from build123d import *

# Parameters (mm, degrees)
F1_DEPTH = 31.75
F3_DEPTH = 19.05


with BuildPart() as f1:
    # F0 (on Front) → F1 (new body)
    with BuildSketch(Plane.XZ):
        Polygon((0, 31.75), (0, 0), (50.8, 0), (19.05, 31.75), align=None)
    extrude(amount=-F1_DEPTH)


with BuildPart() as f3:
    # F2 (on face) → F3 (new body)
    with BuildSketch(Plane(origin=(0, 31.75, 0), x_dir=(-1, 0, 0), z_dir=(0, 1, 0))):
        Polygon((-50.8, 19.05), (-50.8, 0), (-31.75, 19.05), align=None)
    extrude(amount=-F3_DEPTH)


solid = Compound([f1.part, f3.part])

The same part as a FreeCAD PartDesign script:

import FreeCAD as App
import Part
import Sketcher

V = App.Vector
Q = App.Units.Quantity

doc = App.newDocument("Part")
body = doc.addObject("PartDesign::Body", "Body")

# Sketch on XZ plane
sketch1 = body.newObject("Sketcher::SketchObject", "Sketch")
sketch1.AttachmentSupport = (doc.getObject("XZ_Plane"), [""])
sketch1.MapMode = "FlatFace"
sketch1.addGeometry([
    Part.LineSegment(V(0, 31.75, 0), V(0, 0, 0)),
    Part.LineSegment(V(0, 0, 0), V(50.8, 0, 0)),
    Part.LineSegment(V(50.8, 0, 0), V(19.05, 31.75, 0)),
    Part.LineSegment(V(19.05, 31.75, 0), V(0, 31.75, 0)),
], False)
sketch1.addConstraint([
    Sketcher.Constraint("Coincident", 0, 2, 1, 1),
    Sketcher.Constraint("Coincident", 1, 2, 2, 1),
    Sketcher.Constraint("Coincident", 2, 2, 3, 1),
    Sketcher.Constraint("Coincident", 3, 2, 0, 1),
    Sketcher.Constraint("Vertical", 0),
    Sketcher.Constraint("Horizontal", 1),
    Sketcher.Constraint("Horizontal", 3),
    Sketcher.Constraint("Coincident", 0, 2, -1, 1),
    Sketcher.Constraint("DistanceX", 1, 1, 1, 2, Q("2 in")),
    Sketcher.Constraint("Angle", 2, Q("135 deg")),
    Sketcher.Constraint("DistanceX", 3, 2, 3, 1, Q("0.75 in")),
])
pad1 = body.newObject("PartDesign::Pad", "Pad")
pad1.Profile = sketch1
pad1.Length = Q("1.25 in")
pad1.Reversed = True
body2 = doc.addObject("PartDesign::Body", "Body001")

# Sketch on XZ plane
sketch2 = body2.newObject("Sketcher::SketchObject", "Sketch001")
sketch2.AttachmentSupport = (doc.getObject("XZ_Plane001"), [""])
sketch2.MapMode = "FlatFace"
sketch2.AttachmentOffset = App.Placement(V(0, 0, -1.25 * 25.4), App.Rotation())
sketch2.addGeometry([
    Part.LineSegment(V(50.8, 19.05, 0), V(50.8, 0, 0)),
    Part.LineSegment(V(50.8, 0, 0), V(31.75, 19.05, 0)),
    Part.LineSegment(V(31.75, 19.05, 0), V(50.8, 19.05, 0)),
], False)
sketch2.addConstraint([
    Sketcher.Constraint("Coincident", 0, 2, 1, 1),
    Sketcher.Constraint("Coincident", 1, 2, 2, 1),
    Sketcher.Constraint("Coincident", 2, 2, 0, 1),
    Sketcher.Constraint("Vertical", 0),
    Sketcher.Constraint("Horizontal", 2),
    Sketcher.Constraint("PointOnObject", 0, 2, -1),
    Sketcher.Constraint("Equal", 2, 0),
    Sketcher.Constraint("DistanceX", -1, 1, 0, 2, Q("2 in")),
    Sketcher.Constraint("DistanceX", 2, 1, 2, 2, Q("0.75 in")),
])
pad2 = body2.newObject("PartDesign::Pad", "Pad001")
pad2.Profile = sketch2
pad2.Length = Q("0.75 in")

doc.recompute()
